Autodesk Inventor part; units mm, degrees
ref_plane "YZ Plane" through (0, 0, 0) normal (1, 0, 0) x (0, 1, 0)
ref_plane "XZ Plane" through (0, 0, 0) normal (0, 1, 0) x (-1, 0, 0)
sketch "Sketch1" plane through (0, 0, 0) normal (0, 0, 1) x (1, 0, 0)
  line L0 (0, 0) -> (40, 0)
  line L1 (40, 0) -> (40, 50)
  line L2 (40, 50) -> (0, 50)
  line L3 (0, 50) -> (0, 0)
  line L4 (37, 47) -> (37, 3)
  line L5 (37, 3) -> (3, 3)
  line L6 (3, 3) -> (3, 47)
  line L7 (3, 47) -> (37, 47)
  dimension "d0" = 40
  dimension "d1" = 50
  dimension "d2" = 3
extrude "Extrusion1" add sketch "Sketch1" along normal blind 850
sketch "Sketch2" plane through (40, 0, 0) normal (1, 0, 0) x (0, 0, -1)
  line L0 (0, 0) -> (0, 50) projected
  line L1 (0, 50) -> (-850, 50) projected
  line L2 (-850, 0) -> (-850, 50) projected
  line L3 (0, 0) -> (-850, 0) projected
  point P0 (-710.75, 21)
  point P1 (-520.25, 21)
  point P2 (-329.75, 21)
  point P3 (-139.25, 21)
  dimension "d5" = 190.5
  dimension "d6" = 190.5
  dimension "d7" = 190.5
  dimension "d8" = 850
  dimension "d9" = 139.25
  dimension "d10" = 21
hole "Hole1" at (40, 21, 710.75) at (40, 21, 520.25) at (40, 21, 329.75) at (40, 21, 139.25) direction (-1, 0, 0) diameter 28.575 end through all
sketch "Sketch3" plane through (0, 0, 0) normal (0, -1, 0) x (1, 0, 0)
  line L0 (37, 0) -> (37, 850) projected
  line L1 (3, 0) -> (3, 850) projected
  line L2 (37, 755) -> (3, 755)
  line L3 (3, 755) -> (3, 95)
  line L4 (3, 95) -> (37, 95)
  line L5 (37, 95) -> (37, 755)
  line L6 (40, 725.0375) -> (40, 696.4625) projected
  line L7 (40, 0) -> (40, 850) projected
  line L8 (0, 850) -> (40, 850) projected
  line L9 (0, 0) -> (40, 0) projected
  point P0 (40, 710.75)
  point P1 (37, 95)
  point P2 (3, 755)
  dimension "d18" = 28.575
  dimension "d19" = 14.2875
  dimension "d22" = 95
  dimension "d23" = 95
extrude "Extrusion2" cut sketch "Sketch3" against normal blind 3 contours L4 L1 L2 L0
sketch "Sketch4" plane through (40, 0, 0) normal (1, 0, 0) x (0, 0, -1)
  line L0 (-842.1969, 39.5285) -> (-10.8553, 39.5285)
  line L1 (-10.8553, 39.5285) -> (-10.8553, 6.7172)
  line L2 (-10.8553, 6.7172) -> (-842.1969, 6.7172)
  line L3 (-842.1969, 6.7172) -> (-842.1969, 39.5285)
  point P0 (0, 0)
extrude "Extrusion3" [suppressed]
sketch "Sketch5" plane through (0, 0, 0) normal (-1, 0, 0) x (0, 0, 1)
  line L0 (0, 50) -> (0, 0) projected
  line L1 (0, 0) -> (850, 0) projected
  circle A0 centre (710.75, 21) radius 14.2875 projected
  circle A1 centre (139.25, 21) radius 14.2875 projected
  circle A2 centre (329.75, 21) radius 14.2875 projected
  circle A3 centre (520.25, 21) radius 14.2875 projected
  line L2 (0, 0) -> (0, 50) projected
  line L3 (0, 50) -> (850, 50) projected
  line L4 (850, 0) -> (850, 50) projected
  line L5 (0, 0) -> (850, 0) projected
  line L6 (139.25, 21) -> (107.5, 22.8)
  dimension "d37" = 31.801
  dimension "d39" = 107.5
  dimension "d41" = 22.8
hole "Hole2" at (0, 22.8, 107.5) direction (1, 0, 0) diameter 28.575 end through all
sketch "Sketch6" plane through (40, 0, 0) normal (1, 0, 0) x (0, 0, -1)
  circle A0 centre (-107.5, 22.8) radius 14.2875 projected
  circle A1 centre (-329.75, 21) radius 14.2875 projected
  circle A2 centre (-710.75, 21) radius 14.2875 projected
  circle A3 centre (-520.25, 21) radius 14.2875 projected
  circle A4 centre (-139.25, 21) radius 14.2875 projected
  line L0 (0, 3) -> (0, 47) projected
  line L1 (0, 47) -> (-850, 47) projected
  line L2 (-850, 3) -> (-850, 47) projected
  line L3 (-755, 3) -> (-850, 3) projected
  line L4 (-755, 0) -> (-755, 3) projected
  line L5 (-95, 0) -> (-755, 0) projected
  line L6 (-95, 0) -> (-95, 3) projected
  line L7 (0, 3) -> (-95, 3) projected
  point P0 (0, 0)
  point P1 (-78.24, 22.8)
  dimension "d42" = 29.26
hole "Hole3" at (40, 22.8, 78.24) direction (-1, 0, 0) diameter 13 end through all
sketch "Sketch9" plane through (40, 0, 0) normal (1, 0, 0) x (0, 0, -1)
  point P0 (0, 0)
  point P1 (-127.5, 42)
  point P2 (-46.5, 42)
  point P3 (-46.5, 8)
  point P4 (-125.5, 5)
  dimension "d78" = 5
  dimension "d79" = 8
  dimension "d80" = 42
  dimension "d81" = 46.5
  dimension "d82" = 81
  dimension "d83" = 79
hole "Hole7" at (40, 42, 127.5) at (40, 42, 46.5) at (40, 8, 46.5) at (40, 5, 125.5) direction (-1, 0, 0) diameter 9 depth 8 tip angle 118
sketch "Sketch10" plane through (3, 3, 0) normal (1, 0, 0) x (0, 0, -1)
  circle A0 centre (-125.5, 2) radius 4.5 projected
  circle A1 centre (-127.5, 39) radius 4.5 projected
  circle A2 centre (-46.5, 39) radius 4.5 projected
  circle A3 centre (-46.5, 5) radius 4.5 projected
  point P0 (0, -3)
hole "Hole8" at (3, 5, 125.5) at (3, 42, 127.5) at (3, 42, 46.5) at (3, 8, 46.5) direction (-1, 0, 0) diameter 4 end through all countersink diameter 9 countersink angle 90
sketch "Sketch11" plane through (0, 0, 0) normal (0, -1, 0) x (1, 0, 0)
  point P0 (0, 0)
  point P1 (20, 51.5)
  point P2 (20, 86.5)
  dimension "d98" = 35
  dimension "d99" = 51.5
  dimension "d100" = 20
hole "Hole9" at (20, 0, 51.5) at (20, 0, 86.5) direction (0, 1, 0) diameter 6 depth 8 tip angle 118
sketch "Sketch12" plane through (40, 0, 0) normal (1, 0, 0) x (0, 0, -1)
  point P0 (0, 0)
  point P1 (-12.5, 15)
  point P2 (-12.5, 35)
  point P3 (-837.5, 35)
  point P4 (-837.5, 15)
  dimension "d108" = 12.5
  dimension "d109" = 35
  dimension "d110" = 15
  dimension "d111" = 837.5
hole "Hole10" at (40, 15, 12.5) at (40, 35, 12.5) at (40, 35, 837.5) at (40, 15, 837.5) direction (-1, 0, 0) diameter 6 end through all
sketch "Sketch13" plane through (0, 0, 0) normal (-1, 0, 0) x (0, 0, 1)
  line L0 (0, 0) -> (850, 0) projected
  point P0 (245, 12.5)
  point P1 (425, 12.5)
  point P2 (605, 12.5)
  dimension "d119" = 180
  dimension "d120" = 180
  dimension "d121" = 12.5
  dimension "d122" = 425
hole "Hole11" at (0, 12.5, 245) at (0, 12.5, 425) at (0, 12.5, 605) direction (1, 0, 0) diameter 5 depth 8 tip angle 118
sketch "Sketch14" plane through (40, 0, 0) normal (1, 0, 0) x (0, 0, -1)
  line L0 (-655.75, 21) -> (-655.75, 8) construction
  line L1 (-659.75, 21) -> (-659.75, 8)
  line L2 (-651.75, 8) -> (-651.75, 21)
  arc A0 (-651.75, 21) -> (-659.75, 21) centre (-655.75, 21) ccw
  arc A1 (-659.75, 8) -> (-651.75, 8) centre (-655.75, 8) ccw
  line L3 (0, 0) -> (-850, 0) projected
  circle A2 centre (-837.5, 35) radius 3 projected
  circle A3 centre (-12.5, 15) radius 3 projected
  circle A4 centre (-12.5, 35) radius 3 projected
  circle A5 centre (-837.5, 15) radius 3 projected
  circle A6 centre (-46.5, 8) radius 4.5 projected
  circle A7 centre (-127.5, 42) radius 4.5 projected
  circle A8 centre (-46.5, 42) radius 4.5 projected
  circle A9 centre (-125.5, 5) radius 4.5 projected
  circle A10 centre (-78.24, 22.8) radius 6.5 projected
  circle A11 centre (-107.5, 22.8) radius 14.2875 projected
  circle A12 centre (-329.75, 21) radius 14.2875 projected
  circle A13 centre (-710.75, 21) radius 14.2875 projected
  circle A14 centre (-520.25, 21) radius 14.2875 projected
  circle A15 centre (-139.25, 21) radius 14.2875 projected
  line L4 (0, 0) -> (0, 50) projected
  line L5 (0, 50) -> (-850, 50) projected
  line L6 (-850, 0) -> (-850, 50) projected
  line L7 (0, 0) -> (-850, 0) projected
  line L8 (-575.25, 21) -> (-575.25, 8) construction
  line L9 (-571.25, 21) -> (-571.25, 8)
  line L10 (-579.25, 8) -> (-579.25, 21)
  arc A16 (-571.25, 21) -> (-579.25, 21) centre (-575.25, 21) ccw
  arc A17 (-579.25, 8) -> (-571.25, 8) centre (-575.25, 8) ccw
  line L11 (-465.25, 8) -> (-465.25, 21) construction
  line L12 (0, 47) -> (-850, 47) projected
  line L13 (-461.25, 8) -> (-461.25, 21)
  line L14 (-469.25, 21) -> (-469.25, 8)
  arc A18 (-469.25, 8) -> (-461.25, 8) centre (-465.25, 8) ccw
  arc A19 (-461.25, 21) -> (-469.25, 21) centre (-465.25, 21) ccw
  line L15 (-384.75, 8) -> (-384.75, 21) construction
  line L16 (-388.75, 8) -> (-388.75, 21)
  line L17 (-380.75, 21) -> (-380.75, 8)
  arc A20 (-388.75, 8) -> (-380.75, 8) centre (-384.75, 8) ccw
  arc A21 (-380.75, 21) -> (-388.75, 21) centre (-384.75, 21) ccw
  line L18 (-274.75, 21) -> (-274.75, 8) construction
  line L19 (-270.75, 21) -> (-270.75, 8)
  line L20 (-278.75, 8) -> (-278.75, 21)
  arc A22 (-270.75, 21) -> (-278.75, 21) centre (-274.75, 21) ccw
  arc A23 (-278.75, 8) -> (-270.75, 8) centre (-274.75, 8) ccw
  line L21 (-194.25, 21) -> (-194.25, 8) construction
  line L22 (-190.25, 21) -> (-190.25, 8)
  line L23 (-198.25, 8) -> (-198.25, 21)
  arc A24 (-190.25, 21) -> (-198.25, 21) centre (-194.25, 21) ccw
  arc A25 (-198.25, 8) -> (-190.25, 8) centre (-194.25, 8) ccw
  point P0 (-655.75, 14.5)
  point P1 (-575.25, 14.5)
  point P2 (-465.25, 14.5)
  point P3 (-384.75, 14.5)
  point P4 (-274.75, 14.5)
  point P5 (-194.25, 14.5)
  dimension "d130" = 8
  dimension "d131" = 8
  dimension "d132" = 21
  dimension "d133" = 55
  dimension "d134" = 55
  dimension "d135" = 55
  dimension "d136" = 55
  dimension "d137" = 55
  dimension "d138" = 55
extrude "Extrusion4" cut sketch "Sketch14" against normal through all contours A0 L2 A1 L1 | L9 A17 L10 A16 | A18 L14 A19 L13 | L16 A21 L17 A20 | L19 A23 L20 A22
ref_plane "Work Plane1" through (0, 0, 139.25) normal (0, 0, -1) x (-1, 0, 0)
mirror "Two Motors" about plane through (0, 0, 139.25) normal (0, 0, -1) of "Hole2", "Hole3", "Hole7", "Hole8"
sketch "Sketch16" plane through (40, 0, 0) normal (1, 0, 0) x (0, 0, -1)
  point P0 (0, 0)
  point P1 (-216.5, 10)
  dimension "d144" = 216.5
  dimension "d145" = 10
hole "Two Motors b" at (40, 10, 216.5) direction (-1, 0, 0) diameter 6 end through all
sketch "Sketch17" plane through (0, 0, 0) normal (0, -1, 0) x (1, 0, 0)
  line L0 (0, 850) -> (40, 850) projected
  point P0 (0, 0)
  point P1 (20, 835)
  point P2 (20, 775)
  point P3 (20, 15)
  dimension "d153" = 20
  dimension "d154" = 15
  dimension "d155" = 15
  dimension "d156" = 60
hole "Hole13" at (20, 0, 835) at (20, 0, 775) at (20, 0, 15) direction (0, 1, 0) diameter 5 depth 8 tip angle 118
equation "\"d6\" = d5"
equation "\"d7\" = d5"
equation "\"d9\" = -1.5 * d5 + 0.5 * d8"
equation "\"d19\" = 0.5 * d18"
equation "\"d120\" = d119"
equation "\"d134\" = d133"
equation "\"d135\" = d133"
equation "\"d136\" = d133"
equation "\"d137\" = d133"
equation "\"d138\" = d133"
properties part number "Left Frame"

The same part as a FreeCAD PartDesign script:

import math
import FreeCAD as App
import Part
import Sketcher


def add_polygon(sketch, points):
    """Adds a closed chain of lines whose ends are joined by coincident constraints."""
    first, n = sketch.GeometryCount, len(points)
    for a, b in zip(points, points[1:] + points[:1]):
        sketch.addGeometry(Part.LineSegment(App.Vector(*a, 0), App.Vector(*b, 0)), False)
    for i in range(n):
        sketch.addConstraint(Sketcher.Constraint("Coincident", first + i, 2, first + (i + 1) % n, 1))

doc = App.newDocument("Part")
body = doc.addObject("PartDesign::Body", "Body")

# Sketch on XY plane
sketch1 = doc.addObject("Sketcher::SketchObject", "Sketch")
body.addObject(sketch1)
sketch1.AttachmentSupport = (doc.XY_Plane, [""])
sketch1.MapMode = "FlatFace"
add_polygon(sketch1, [(0, 50), (0, 0), (40, 0), (40, 50)])  # lines 0-3
add_polygon(sketch1, [(3, 47), (37, 47), (37, 3), (3, 3)])  # lines 4-7
sketch1.addConstraint(Sketcher.Constraint("Vertical", 0))
sketch1.addConstraint(Sketcher.Constraint("Horizontal", 1))
sketch1.addConstraint(Sketcher.Constraint("Vertical", 2))
sketch1.addConstraint(Sketcher.Constraint("Horizontal", 3))
sketch1.addConstraint(Sketcher.Constraint("Horizontal", 4))
sketch1.addConstraint(Sketcher.Constraint("Vertical", 5))
sketch1.addConstraint(Sketcher.Constraint("Horizontal", 6))
sketch1.addConstraint(Sketcher.Constraint("Vertical", 7))
sketch1.addConstraint(Sketcher.Constraint("Coincident", 0, 2, -1, 1))
sketch1.addConstraint(Sketcher.Constraint("DistanceX", 1, 1, 1, 2, 40.0))
sketch1.addConstraint(Sketcher.Constraint("DistanceY", 0, 2, 0, 1, 50.0))
sketch1.addConstraint(Sketcher.Constraint("DistanceY", -1, 1, 5, 2, 3.0))
sketch1.addConstraint(Sketcher.Constraint("DistanceX", -1, 1, 6, 2, 3.0))
sketch1.addConstraint(Sketcher.Constraint("DistanceX", 4, 2, 2, 2, 3.0))
sketch1.addConstraint(Sketcher.Constraint("DistanceY", 4, 2, 2, 2, 3.0))
pad1 = doc.addObject("PartDesign::Pad", "Pad")
body.addObject(pad1)
pad1.Profile = sketch1
pad1.Length = 850

# Sketch on YZ plane
sketch2 = doc.addObject("Sketcher::SketchObject", "Sketch001")
body.addObject(sketch2)
sketch2.AttachmentSupport = (doc.YZ_Plane, [""])
sketch2.MapMode = "FlatFace"
sketch2.AttachmentOffset = App.Placement(App.Vector(0, 0, 40), App.Rotation())
sketch2.addGeometry(Part.Circle(App.Vector(21, 710.75, 0), App.Vector(0, 0, 1), 14.2875), False)
sketch2.addGeometry(Part.Circle(App.Vector(21, 520.25, 0), App.Vector(0, 0, 1), 14.2875), False)
sketch2.addGeometry(Part.Circle(App.Vector(21, 329.75, 0), App.Vector(0, 0, 1), 14.2875), False)
sketch2.addGeometry(Part.Circle(App.Vector(21, 139.25, 0), App.Vector(0, 0, 1), 14.2875), False)
sketch2.addConstraint(Sketcher.Constraint("Equal", 0, 1))
sketch2.addConstraint(Sketcher.Constraint("Equal", 1, 2))
sketch2.addConstraint(Sketcher.Constraint("Equal", 2, 3))
sketch2.addConstraint(Sketcher.Constraint("Vertical", 0, 3, 1, 3))
sketch2.addConstraint(Sketcher.Constraint("Vertical", 1, 3, 2, 3))
sketch2.addConstraint(Sketcher.Constraint("Vertical", 2, 3, 3, 3))
sketch2.addConstraint(Sketcher.Constraint("Diameter", 0, 28.575))
sketch2.addConstraint(Sketcher.Constraint("DistanceX", -1, 1, 0, 3, 21.0))
sketch2.addConstraint(Sketcher.Constraint("DistanceY", 2, 3, 0, 3, 381.0))
sketch2.addConstraint(Sketcher.Constraint("DistanceY", 3, 3, 1, 3, 381.0))
sketch2.addConstraint(Sketcher.Constraint("DistanceY", 1, 3, 0, 3, 190.5))
sketch2.addConstraint(Sketcher.Constraint("DistanceY", -1, 1, 0, 3, 710.75))
doc.recompute()
hole = doc.addObject("PartDesign::Hole", "Hole")
body.addObject(hole)
hole.Profile = sketch2
hole.ThreadType = "None"
hole.Diameter = 28.575
hole.DepthType = "ThroughAll"

# Sketch on XZ plane
sketch3 = doc.addObject("Sketcher::SketchObject", "Sketch002")
body.addObject(sketch3)
sketch3.AttachmentSupport = (doc.XZ_Plane, [""])
sketch3.MapMode = "FlatFace"
add_polygon(sketch3, [(3, 95), (37, 95), (37, 755), (3, 755)])  # lines 0-3
sketch3.addConstraint(Sketcher.Constraint("Horizontal", 0))
sketch3.addConstraint(Sketcher.Constraint("Vertical", 1))
sketch3.addConstraint(Sketcher.Constraint("Horizontal", 2))
sketch3.addConstraint(Sketcher.Constraint("Vertical", 3))
sketch3.addConstraint(Sketcher.Constraint("DistanceY", -1, 1, 0, 2, 95.0))
sketch3.addConstraint(Sketcher.Constraint("DistanceX", 0, 1, 0, 2, 34.0))
sketch3.addConstraint(Sketcher.Constraint("DistanceY", 1, 1, 1, 2, 660.0))
sketch3.addConstraint(Sketcher.Constraint("DistanceX", -1, 1, 0, 2, 37.0))
pocket1 = doc.addObject("PartDesign::Pocket", "Pocket")
body.addObject(pocket1)
pocket1.Profile = sketch3
pocket1.Length = 3

# Sketch on YZ plane
sketch4 = doc.addObject("Sketcher::SketchObject", "Sketch003")
body.addObject(sketch4)
sketch4.AttachmentSupport = (doc.YZ_Plane, [""])
sketch4.MapMode = "FlatFace"
sketch4.addGeometry(Part.Circle(App.Vector(22.8, 107.5, 0), App.Vector(0, 0, 1), 14.2875), False)
sketch4.addConstraint(Sketcher.Constraint("Diameter", 0, 28.575))
sketch4.addConstraint(Sketcher.Constraint("DistanceX", -1, 1, 0, 3, 22.8))
sketch4.addConstraint(Sketcher.Constraint("DistanceY", -1, 1, 0, 3, 107.5))
doc.recompute()
hole2 = doc.addObject("PartDesign::Hole", "Hole001")
body.addObject(hole2)
hole2.Profile = sketch4
hole2.ThreadType = "None"
hole2.Diameter = 28.575
hole2.DepthType = "ThroughAll"
hole2.Reversed = True

# Sketch on YZ plane
sketch5 = doc.addObject("Sketcher::SketchObject", "Sketch004")
body.addObject(sketch5)
sketch5.AttachmentSupport = (doc.YZ_Plane, [""])
sketch5.MapMode = "FlatFace"
sketch5.AttachmentOffset = App.Placement(App.Vector(0, 0, 40), App.Rotation())
sketch5.addGeometry(Part.Circle(App.Vector(22.8, 78.24, 0), App.Vector(0, 0, 1), 6.5), False)
sketch5.addConstraint(Sketcher.Constraint("Diameter", 0, 13.0))
sketch5.addConstraint(Sketcher.Constraint("DistanceX", -1, 1, 0, 3, 22.8))
sketch5.addConstraint(Sketcher.Constraint("DistanceY", -1, 1, 0, 3, 78.24))
doc.recompute()
hole3 = doc.addObject("PartDesign::Hole", "Hole002")
body.addObject(hole3)
hole3.Profile = sketch5
hole3.ThreadType = "None"
hole3.Diameter = 13
hole3.DepthType = "ThroughAll"

# Sketch on YZ plane
sketch6 = doc.addObject("Sketcher::SketchObject", "Sketch005")
body.addObject(sketch6)
sketch6.AttachmentSupport = (doc.YZ_Plane, [""])
sketch6.MapMode = "FlatFace"
sketch6.AttachmentOffset = App.Placement(App.Vector(0, 0, 40), App.Rotation())
sketch6.addGeometry(Part.Circle(App.Vector(42, 127.5, 0), App.Vector(0, 0, 1), 4.5), False)
sketch6.addGeometry(Part.Circle(App.Vector(42, 46.5, 0), App.Vector(0, 0, 1), 4.5), False)
sketch6.addGeometry(Part.Circle(App.Vector(8, 46.5, 0), App.Vector(0, 0, 1), 4.5), False)
sketch6.addGeometry(Part.Circle(App.Vector(5, 125.5, 0), App.Vector(0, 0, 1), 4.5), False)
sketch6.addConstraint(Sketcher.Constraint("Equal", 0, 1))
sketch6.addConstraint(Sketcher.Constraint("Equal", 1, 2))
sketch6.addConstraint(Sketcher.Constraint("Equal", 2, 3))
sketch6.addConstraint(Sketcher.Constraint("Horizontal", 1, 3, 2, 3))
sketch6.addConstraint(Sketcher.Constraint("Vertical", 0, 3, 1, 3))
sketch6.addConstraint(Sketcher.Constraint("Diameter", 0, 9.0))
sketch6.addConstraint(Sketcher.Constraint("DistanceX", -1, 1, 0, 3, 42.0))
sketch6.addConstraint(Sketcher.Constraint("DistanceX", -1, 1, 2, 3, 8.0))
sketch6.addConstraint(Sketcher.Constraint("DistanceX", -1, 1, 3, 3, 5.0))
sketch6.addConstraint(Sketcher.Constraint("DistanceY", 1, 3, 0, 3, 81.0))
sketch6.addConstraint(Sketcher.Constraint("DistanceY", 3, 3, 0, 3, 2.0))
sketch6.addConstraint(Sketcher.Constraint("DistanceY", -1, 1, 0, 3, 127.5))
doc.recompute()
hole4 = doc.addObject("PartDesign::Hole", "Hole003")
body.addObject(hole4)
hole4.Profile = sketch6
hole4.ThreadType = "None"
hole4.Diameter = 9
hole4.DepthType = "Dimension"
hole4.Depth = 8
hole4.DrillPoint = "Angled"
hole4.DrillPointAngle = 118

# Sketch on YZ plane
sketch7 = doc.addObject("Sketcher::SketchObject", "Sketch006")
body.addObject(sketch7)
sketch7.AttachmentSupport = (doc.YZ_Plane, [""])
sketch7.MapMode = "FlatFace"
sketch7.AttachmentOffset = App.Placement(App.Vector(0, 0, 3), App.Rotation())
sketch7.addGeometry(Part.Circle(App.Vector(5, 125.5, 0), App.Vector(0, 0, 1), 2), False)
sketch7.addGeometry(Part.Circle(App.Vector(42, 127.5, 0), App.Vector(0, 0, 1), 2), False)
sketch7.addGeometry(Part.Circle(App.Vector(42, 46.5, 0), App.Vector(0, 0, 1), 2), False)
sketch7.addGeometry(Part.Circle(App.Vector(8, 46.5, 0), App.Vector(0, 0, 1), 2), False)
sketch7.addConstraint(Sketcher.Constraint("Equal", 0, 1))
sketch7.addConstraint(Sketcher.Constraint("Equal", 1, 2))
sketch7.addConstraint(Sketcher.Constraint("Equal", 2, 3))
sketch7.addConstraint(Sketcher.Constraint("Horizontal", 2, 3, 3, 3))
sketch7.addConstraint(Sketcher.Constraint("Vertical", 1, 3, 2, 3))
sketch7.addConstraint(Sketcher.Constraint("Diameter", 0, 4.0))
sketch7.addConstraint(Sketcher.Constraint("DistanceX", -1, 1, 0, 3, 5.0))
sketch7.addConstraint(Sketcher.Constraint("DistanceX", -1, 1, 1, 3, 42.0))
sketch7.addConstraint(Sketcher.Constraint("DistanceX", -1, 1, 3, 3, 8.0))
sketch7.addConstraint(Sketcher.Constraint("DistanceY", 0, 3, 1, 3, 2.0))
sketch7.addConstraint(Sketcher.Constraint("DistanceY", 2, 3, 1, 3, 81.0))
sketch7.addConstraint(Sketcher.Constraint("DistanceY", -1, 1, 0, 3, 125.5))
doc.recompute()
hole5 = doc.addObject("PartDesign::Hole", "Hole004")
body.addObject(hole5)
hole5.Profile = sketch7
hole5.ThreadType = "None"
hole5.Diameter = 4
hole5.DepthType = "ThroughAll"
hole5.HoleCutType = "Countersink"
hole5.HoleCutDiameter = 9
hole5.HoleCutCountersinkAngle = 90

# Sketch on XZ plane
sketch8 = doc.addObject("Sketcher::SketchObject", "Sketch007")
body.addObject(sketch8)
sketch8.AttachmentSupport = (doc.XZ_Plane, [""])
sketch8.MapMode = "FlatFace"
sketch8.addGeometry(Part.Circle(App.Vector(20, 51.5, 0), App.Vector(0, 0, 1), 3), False)
sketch8.addGeometry(Part.Circle(App.Vector(20, 86.5, 0), App.Vector(0, 0, 1), 3), False)
sketch8.addConstraint(Sketcher.Constraint("Equal", 0, 1))
sketch8.addConstraint(Sketcher.Constraint("Vertical", 0, 3, 1, 3))
sketch8.addConstraint(Sketcher.Constraint("Diameter", 0, 6.0))
sketch8.addConstraint(Sketcher.Constraint("DistanceX", -1, 1, 0, 3, 20.0))
sketch8.addConstraint(Sketcher.Constraint("DistanceY", 0, 3, 1, 3, 35.0))
sketch8.addConstraint(Sketcher.Constraint("DistanceY", -1, 1, 0, 3, 51.5))
doc.recompute()
hole6 = doc.addObject("PartDesign::Hole", "Hole005")
body.addObject(hole6)
hole6.Profile = sketch8
hole6.ThreadType = "None"
hole6.Diameter = 6
hole6.DepthType = "Dimension"
hole6.Depth = 8
hole6.DrillPoint = "Angled"
hole6.DrillPointAngle = 118

# Sketch on YZ plane
sketch9 = doc.addObject("Sketcher::SketchObject", "Sketch008")
body.addObject(sketch9)
sketch9.AttachmentSupport = (doc.YZ_Plane, [""])
sketch9.MapMode = "FlatFace"
sketch9.AttachmentOffset = App.Placement(App.Vector(0, 0, 40), App.Rotation())
sketch9.addGeometry(Part.Circle(App.Vector(15, 12.5, 0), App.Vector(0, 0, 1), 3), False)
sketch9.addGeometry(Part.Circle(App.Vector(35, 12.5, 0), App.Vector(0, 0, 1), 3), False)
sketch9.addGeometry(Part.Circle(App.Vector(35, 837.5, 0), App.Vector(0, 0, 1), 3), False)
sketch9.addGeometry(Part.Circle(App.Vector(15, 837.5, 0), App.Vector(0, 0, 1), 3), False)
sketch9.addConstraint(Sketcher.Constraint("Equal", 0, 1))
sketch9.addConstraint(Sketcher.Constraint("Equal", 1, 2))
sketch9.addConstraint(Sketcher.Constraint("Equal", 2, 3))
sketch9.addConstraint(Sketcher.Constraint("Horizontal", 0, 3, 1, 3))
sketch9.addConstraint(Sketcher.Constraint("Horizontal", 2, 3, 3, 3))
sketch9.addConstraint(Sketcher.Constraint("Vertical", 1, 3, 2, 3))
sketch9.addConstraint(Sketcher.Constraint("Vertical", 0, 3, 3, 3))
sketch9.addConstraint(Sketcher.Constraint("Diameter", 0, 6.0))
sketch9.addConstraint(Sketcher.Constraint("DistanceX", -1, 1, 0, 3, 15.0))
sketch9.addConstraint(Sketcher.Constraint("DistanceX", -1, 1, 1, 3, 35.0))
sketch9.addConstraint(Sketcher.Constraint("DistanceY", 1, 3, 2, 3, 825.0))
sketch9.addConstraint(Sketcher.Constraint("DistanceY", -1, 1, 0, 3, 12.5))
doc.recompute()
hole7 = doc.addObject("PartDesign::Hole", "Hole006")
body.addObject(hole7)
hole7.Profile = sketch9
hole7.ThreadType = "None"
hole7.Diameter = 6
hole7.DepthType = "ThroughAll"

# Sketch on YZ plane
sketch10 = doc.addObject("Sketcher::SketchObject", "Sketch009")
body.addObject(sketch10)
sketch10.AttachmentSupport = (doc.YZ_Plane, [""])
sketch10.MapMode = "FlatFace"
sketch10.addGeometry(Part.Circle(App.Vector(12.5, 245, 0), App.Vector(0, 0, 1), 2.5), False)
sketch10.addGeometry(Part.Circle(App.Vector(12.5, 425, 0), App.Vector(0, 0, 1), 2.5), False)
sketch10.addGeometry(Part.Circle(App.Vector(12.5, 605, 0), App.Vector(0, 0, 1), 2.5), False)
sketch10.addConstraint(Sketcher.Constraint("Equal", 0, 1))
sketch10.addConstraint(Sketcher.Constraint("Equal", 1, 2))
sketch10.addConstraint(Sketcher.Constraint("Vertical", 0, 3, 1, 3))
sketch10.addConstraint(Sketcher.Constraint("Vertical", 1, 3, 2, 3))
sketch10.addConstraint(Sketcher.Constraint("Diameter", 0, 5.0))
sketch10.addConstraint(Sketcher.Constraint("DistanceY", -1, 1, 0, 3, 245.0))
sketch10.addConstraint(Sketcher.Constraint("DistanceY", -1, 1, 1, 3, 425.0))
sketch10.addConstraint(Sketcher.Constraint("DistanceY", -1, 1, 2, 3, 605.0))
sketch10.addConstraint(Sketcher.Constraint("DistanceX", -1, 1, 0, 3, 12.5))
doc.recompute()
hole8 = doc.addObject("PartDesign::Hole", "Hole007")
body.addObject(hole8)
hole8.Profile = sketch10
hole8.ThreadType = "None"
hole8.Diameter = 5
hole8.DepthType = "Dimension"
hole8.Depth = 8
hole8.DrillPoint = "Angled"
hole8.DrillPointAngle = 118
hole8.Reversed = True

# Sketch on YZ plane
sketch11 = doc.addObject("Sketcher::SketchObject", "Sketch010")
body.addObject(sketch11)
sketch11.AttachmentSupport = (doc.YZ_Plane, [""])
sketch11.MapMode = "FlatFace"
sketch11.AttachmentOffset = App.Placement(App.Vector(0, 0, 40), App.Rotation())
sketch11.addGeometry(Part.ArcOfCircle(Part.Circle(App.Vector(21, 655.75, 0), App.Vector(0, 0, 1), 4), math.radians(-90), math.radians(90)), False)
sketch11.addGeometry(Part.LineSegment(App.Vector(21, 659.75, 0), App.Vector(8, 659.75, 0)), False)
sketch11.addGeometry(Part.ArcOfCircle(Part.Circle(App.Vector(8, 655.75, 0), App.Vector(0, 0, 1), 4), math.radians(90), math.radians(270)), False)
sketch11.addGeometry(Part.LineSegment(App.Vector(8, 651.75, 0), App.Vector(21, 651.75, 0)), False)
sketch11.addGeometry(Part.LineSegment(App.Vector(8, 571.25, 0), App.Vector(21, 571.25, 0)), False)
sketch11.addGeometry(Part.ArcOfCircle(Part.Circle(App.Vector(21, 575.25, 0), App.Vector(0, 0, 1), 4), math.radians(-90), math.radians(90)), False)
sketch11.addGeometry(Part.LineSegment(App.Vector(21, 579.25, 0), App.Vector(8, 579.25, 0)), False)
sketch11.addGeometry(Part.ArcOfCircle(Part.Circle(App.Vector(8, 575.25, 0), App.Vector(0, 0, 1), 4), math.radians(90), math.radians(270)), False)
sketch11.addGeometry(Part.ArcOfCircle(Part.Circle(App.Vector(8, 465.25, 0), App.Vector(0, 0, 1), 4), math.radians(90), math.radians(270)), False)
sketch11.addGeometry(Part.LineSegment(App.Vector(8, 461.25, 0), App.Vector(21, 461.25, 0)), False)
sketch11.addGeometry(Part.ArcOfCircle(Part.Circle(App.Vector(21, 465.25, 0), App.Vector(0, 0, 1), 4), math.radians(-90), math.radians(90)), False)
sketch11.addGeometry(Part.LineSegment(App.Vector(21, 469.25, 0), App.Vector(8, 469.25, 0)), False)
sketch11.addGeometry(Part.LineSegment(App.Vector(21, 388.75, 0), App.Vector(8, 388.75, 0)), False)
sketch11.addGeometry(Part.ArcOfCircle(Part.Circle(App.Vector(8, 384.75, 0), App.Vector(0, 0, 1), 4), math.radians(90), math.radians(270)), False)
sketch11.addGeometry(Part.LineSegment(App.Vector(8, 380.75, 0), App.Vector(21, 380.75, 0)), False)
sketch11.addGeometry(Part.ArcOfCircle(Part.Circle(App.Vector(21, 384.75, 0), App.Vector(0, 0, 1), 4), math.radians(-90), math.radians(90)), False)
sketch11.addGeometry(Part.LineSegment(App.Vector(8, 270.75, 0), App.Vector(21, 270.75, 0)), False)
sketch11.addGeometry(Part.ArcOfCircle(Part.Circle(App.Vector(21, 274.75, 0), App.Vector(0, 0, 1), 4), math.radians(-90), math.radians(90)), False)
sketch11.addGeometry(Part.LineSegment(App.Vector(21, 278.75, 0), App.Vector(8, 278.75, 0)), False)
sketch11.addGeometry(Part.ArcOfCircle(Part.Circle(App.Vector(8, 274.75, 0), App.Vector(0, 0, 1), 4), math.radians(90), math.radians(270)), False)
sketch11.addConstraint(Sketcher.Constraint("Tangent", 0, 2, 1, 1))
sketch11.addConstraint(Sketcher.Constraint("Tangent", 1, 2, 2, 1))
sketch11.addConstraint(Sketcher.Constraint("Tangent", 2, 2, 3, 1))
sketch11.addConstraint(Sketcher.Constraint("Tangent", 3, 2, 0, 1))
sketch11.addConstraint(Sketcher.Constraint("Tangent", 4, 2, 5, 1))
sketch11.addConstraint(Sketcher.Constraint("Tangent", 5, 2, 6, 1))
sketch11.addConstraint(Sketcher.Constraint("Tangent", 6, 2, 7, 1))
sketch11.addConstraint(Sketcher.Constraint("Tangent", 7, 2, 4, 1))
sketch11.addConstraint(Sketcher.Constraint("Tangent", 8, 2, 9, 1))
sketch11.addConstraint(Sketcher.Constraint("Tangent", 9, 2, 10, 1))
sketch11.addConstraint(Sketcher.Constraint("Tangent", 10, 2, 11, 1))
sketch11.addConstraint(Sketcher.Constraint("Tangent", 11, 2, 8, 1))
sketch11.addConstraint(Sketcher.Constraint("Tangent", 12, 2, 13, 1))
sketch11.addConstraint(Sketcher.Constraint("Tangent", 13, 2, 14, 1))
sketch11.addConstraint(Sketcher.Constraint("Tangent", 14, 2, 15, 1))
sketch11.addConstraint(Sketcher.Constraint("Tangent", 15, 2, 12, 1))
sketch11.addConstraint(Sketcher.Constraint("Tangent", 16, 2, 17, 1))
sketch11.addConstraint(Sketcher.Constraint("Tangent", 17, 2, 18, 1))
sketch11.addConstraint(Sketcher.Constraint("Tangent", 18, 2, 19, 1))
sketch11.addConstraint(Sketcher.Constraint("Tangent", 19, 2, 16, 1))
sketch11.addConstraint(Sketcher.Constraint("Horizontal", 1))
sketch11.addConstraint(Sketcher.Constraint("Horizontal", 3))
sketch11.addConstraint(Sketcher.Constraint("Horizontal", 4))
sketch11.addConstraint(Sketcher.Constraint("Horizontal", 6))
sketch11.addConstraint(Sketcher.Constraint("Horizontal", 9))
sketch11.addConstraint(Sketcher.Constraint("Horizontal", 11))
sketch11.addConstraint(Sketcher.Constraint("Horizontal", 12))
sketch11.addConstraint(Sketcher.Constraint("Horizontal", 14))
sketch11.addConstraint(Sketcher.Constraint("Horizontal", 16))
sketch11.addConstraint(Sketcher.Constraint("Horizontal", 18))
sketch11.addConstraint(Sketcher.Constraint("Equal", 2, 5))
sketch11.addConstraint(Sketcher.Constraint("Equal", 7, 8))
sketch11.addConstraint(Sketcher.Constraint("Equal", 10, 13))
sketch11.addConstraint(Sketcher.Constraint("Equal", 15, 17))
sketch11.addConstraint(Sketcher.Constraint("Vertical", 0, 3, 5, 3))
sketch11.addConstraint(Sketcher.Constraint("Vertical", 2, 3, 7, 3))
sketch11.addConstraint(Sketcher.Constraint("Vertical", 7, 3, 8, 3))
sketch11.addConstraint(Sketcher.Constraint("Vertical", 5, 3, 10, 3))
sketch11.addConstraint(Sketcher.Constraint("Vertical", 8, 3, 13, 3))
sketch11.addConstraint(Sketcher.Constraint("Vertical", 10, 3, 15, 3))
sketch11.addConstraint(Sketcher.Constraint("Vertical", 15, 3, 17, 3))
sketch11.addConstraint(Sketcher.Constraint("Vertical", 13, 3, 19, 3))
sketch11.addConstraint(Sketcher.Constraint("Radius", 0, 4.0))
sketch11.addConstraint(Sketcher.Constraint("DistanceX", -1, 1, 0, 3, 21.0))
sketch11.addConstraint(Sketcher.Constraint("DistanceX", -1, 1, 2, 3, 8.0))
sketch11.addConstraint(Sketcher.Constraint("DistanceY", 8, 3, 7, 3, 110.0))
sketch11.addConstraint(Sketcher.Constraint("DistanceY", 13, 3, 2, 3, 271.0))
sketch11.addConstraint(Sketcher.Constraint("DistanceY", 17, 3, 15, 3, 110.0))
sketch11.addConstraint(Sketcher.Constraint("DistanceY", 5, 3, 0, 3, 80.5))
sketch11.addConstraint(Sketcher.Constraint("DistanceY", -1, 1, 0, 3, 655.75))
pocket2 = doc.addObject("PartDesign::Pocket", "Pocket001")
body.addObject(pocket2)
pocket2.Profile = sketch11
pocket2.Type = "ThroughAll"
doc.recompute()

datumplane = doc.addObject("PartDesign::Plane", "DatumPlane")
body.addObject(datumplane)
datumplane.AttachmentSupport = (doc.XY_Plane, [""])
datumplane.MapMode = "FlatFace"
datumplane.AttachmentOffset = App.Placement(App.Vector(0, 0, 139.25), App.Rotation())
mirrored = doc.addObject("PartDesign::Mirrored", "Mirrored")
body.addObject(mirrored)
mirrored.Originals = [hole2, hole3, hole4, hole5]
mirrored.MirrorPlane = (datumplane, [""])
body.Tip = mirrored

# Sketch on YZ plane
sketch12 = doc.addObject("Sketcher::SketchObject", "Sketch011")
body.addObject(sketch12)
sketch12.AttachmentSupport = (doc.YZ_Plane, [""])
sketch12.MapMode = "FlatFace"
sketch12.AttachmentOffset = App.Placement(App.Vector(0, 0, 40), App.Rotation())
sketch12.addGeometry(Part.Circle(App.Vector(10, 216.5, 0), App.Vector(0, 0, 1), 3), False)
sketch12.addConstraint(Sketcher.Constraint("Diameter", 0, 6.0))
sketch12.addConstraint(Sketcher.Constraint("DistanceX", -1, 1, 0, 3, 10.0))
sketch12.addConstraint(Sketcher.Constraint("DistanceY", -1, 1, 0, 3, 216.5))
doc.recompute()
hole9 = doc.addObject("PartDesign::Hole", "Hole008")
body.addObject(hole9)
hole9.Profile = sketch12
hole9.ThreadType = "None"
hole9.Diameter = 6
hole9.DepthType = "ThroughAll"

# Sketch on XZ plane
sketch13 = doc.addObject("Sketcher::SketchObject", "Sketch012")
body.addObject(sketch13)
sketch13.AttachmentSupport = (doc.XZ_Plane, [""])
sketch13.MapMode = "FlatFace"
sketch13.addGeometry(Part.Circle(App.Vector(20, 835, 0), App.Vector(0, 0, 1), 2.5), False)
sketch13.addGeometry(Part.Circle(App.Vector(20, 775, 0), App.Vector(0, 0, 1), 2.5), False)
sketch13.addGeometry(Part.Circle(App.Vector(20, 15, 0), App.Vector(0, 0, 1), 2.5), False)
sketch13.addConstraint(Sketcher.Constraint("Equal", 0, 1))
sketch13.addConstraint(Sketcher.Constraint("Equal", 1, 2))
sketch13.addConstraint(Sketcher.Constraint("Vertical", 0, 3, 1, 3))
sketch13.addConstraint(Sketcher.Constraint("Vertical", 1, 3, 2, 3))
sketch13.addConstraint(Sketcher.Constraint("Diameter", 0, 5.0))
sketch13.addConstraint(Sketcher.Constraint("DistanceX", -1, 1, 0, 3, 20.0))
sketch13.addConstraint(Sketcher.Constraint("DistanceY", -1, 1, 0, 3, 835.0))
sketch13.addConstraint(Sketcher.Constraint("DistanceY", -1, 1, 1, 3, 775.0))
sketch13.addConstraint(Sketcher.Constraint("DistanceY", -1, 1, 2, 3, 15.0))
doc.recompute()
hole10 = doc.addObject("PartDesign::Hole", "Hole009")
body.addObject(hole10)
hole10.Profile = sketch13
hole10.ThreadType = "None"
hole10.Diameter = 5
hole10.DepthType = "Dimension"
hole10.Depth = 8
hole10.DrillPoint = "Angled"
hole10.DrillPointAngle = 118

doc.recompute()
